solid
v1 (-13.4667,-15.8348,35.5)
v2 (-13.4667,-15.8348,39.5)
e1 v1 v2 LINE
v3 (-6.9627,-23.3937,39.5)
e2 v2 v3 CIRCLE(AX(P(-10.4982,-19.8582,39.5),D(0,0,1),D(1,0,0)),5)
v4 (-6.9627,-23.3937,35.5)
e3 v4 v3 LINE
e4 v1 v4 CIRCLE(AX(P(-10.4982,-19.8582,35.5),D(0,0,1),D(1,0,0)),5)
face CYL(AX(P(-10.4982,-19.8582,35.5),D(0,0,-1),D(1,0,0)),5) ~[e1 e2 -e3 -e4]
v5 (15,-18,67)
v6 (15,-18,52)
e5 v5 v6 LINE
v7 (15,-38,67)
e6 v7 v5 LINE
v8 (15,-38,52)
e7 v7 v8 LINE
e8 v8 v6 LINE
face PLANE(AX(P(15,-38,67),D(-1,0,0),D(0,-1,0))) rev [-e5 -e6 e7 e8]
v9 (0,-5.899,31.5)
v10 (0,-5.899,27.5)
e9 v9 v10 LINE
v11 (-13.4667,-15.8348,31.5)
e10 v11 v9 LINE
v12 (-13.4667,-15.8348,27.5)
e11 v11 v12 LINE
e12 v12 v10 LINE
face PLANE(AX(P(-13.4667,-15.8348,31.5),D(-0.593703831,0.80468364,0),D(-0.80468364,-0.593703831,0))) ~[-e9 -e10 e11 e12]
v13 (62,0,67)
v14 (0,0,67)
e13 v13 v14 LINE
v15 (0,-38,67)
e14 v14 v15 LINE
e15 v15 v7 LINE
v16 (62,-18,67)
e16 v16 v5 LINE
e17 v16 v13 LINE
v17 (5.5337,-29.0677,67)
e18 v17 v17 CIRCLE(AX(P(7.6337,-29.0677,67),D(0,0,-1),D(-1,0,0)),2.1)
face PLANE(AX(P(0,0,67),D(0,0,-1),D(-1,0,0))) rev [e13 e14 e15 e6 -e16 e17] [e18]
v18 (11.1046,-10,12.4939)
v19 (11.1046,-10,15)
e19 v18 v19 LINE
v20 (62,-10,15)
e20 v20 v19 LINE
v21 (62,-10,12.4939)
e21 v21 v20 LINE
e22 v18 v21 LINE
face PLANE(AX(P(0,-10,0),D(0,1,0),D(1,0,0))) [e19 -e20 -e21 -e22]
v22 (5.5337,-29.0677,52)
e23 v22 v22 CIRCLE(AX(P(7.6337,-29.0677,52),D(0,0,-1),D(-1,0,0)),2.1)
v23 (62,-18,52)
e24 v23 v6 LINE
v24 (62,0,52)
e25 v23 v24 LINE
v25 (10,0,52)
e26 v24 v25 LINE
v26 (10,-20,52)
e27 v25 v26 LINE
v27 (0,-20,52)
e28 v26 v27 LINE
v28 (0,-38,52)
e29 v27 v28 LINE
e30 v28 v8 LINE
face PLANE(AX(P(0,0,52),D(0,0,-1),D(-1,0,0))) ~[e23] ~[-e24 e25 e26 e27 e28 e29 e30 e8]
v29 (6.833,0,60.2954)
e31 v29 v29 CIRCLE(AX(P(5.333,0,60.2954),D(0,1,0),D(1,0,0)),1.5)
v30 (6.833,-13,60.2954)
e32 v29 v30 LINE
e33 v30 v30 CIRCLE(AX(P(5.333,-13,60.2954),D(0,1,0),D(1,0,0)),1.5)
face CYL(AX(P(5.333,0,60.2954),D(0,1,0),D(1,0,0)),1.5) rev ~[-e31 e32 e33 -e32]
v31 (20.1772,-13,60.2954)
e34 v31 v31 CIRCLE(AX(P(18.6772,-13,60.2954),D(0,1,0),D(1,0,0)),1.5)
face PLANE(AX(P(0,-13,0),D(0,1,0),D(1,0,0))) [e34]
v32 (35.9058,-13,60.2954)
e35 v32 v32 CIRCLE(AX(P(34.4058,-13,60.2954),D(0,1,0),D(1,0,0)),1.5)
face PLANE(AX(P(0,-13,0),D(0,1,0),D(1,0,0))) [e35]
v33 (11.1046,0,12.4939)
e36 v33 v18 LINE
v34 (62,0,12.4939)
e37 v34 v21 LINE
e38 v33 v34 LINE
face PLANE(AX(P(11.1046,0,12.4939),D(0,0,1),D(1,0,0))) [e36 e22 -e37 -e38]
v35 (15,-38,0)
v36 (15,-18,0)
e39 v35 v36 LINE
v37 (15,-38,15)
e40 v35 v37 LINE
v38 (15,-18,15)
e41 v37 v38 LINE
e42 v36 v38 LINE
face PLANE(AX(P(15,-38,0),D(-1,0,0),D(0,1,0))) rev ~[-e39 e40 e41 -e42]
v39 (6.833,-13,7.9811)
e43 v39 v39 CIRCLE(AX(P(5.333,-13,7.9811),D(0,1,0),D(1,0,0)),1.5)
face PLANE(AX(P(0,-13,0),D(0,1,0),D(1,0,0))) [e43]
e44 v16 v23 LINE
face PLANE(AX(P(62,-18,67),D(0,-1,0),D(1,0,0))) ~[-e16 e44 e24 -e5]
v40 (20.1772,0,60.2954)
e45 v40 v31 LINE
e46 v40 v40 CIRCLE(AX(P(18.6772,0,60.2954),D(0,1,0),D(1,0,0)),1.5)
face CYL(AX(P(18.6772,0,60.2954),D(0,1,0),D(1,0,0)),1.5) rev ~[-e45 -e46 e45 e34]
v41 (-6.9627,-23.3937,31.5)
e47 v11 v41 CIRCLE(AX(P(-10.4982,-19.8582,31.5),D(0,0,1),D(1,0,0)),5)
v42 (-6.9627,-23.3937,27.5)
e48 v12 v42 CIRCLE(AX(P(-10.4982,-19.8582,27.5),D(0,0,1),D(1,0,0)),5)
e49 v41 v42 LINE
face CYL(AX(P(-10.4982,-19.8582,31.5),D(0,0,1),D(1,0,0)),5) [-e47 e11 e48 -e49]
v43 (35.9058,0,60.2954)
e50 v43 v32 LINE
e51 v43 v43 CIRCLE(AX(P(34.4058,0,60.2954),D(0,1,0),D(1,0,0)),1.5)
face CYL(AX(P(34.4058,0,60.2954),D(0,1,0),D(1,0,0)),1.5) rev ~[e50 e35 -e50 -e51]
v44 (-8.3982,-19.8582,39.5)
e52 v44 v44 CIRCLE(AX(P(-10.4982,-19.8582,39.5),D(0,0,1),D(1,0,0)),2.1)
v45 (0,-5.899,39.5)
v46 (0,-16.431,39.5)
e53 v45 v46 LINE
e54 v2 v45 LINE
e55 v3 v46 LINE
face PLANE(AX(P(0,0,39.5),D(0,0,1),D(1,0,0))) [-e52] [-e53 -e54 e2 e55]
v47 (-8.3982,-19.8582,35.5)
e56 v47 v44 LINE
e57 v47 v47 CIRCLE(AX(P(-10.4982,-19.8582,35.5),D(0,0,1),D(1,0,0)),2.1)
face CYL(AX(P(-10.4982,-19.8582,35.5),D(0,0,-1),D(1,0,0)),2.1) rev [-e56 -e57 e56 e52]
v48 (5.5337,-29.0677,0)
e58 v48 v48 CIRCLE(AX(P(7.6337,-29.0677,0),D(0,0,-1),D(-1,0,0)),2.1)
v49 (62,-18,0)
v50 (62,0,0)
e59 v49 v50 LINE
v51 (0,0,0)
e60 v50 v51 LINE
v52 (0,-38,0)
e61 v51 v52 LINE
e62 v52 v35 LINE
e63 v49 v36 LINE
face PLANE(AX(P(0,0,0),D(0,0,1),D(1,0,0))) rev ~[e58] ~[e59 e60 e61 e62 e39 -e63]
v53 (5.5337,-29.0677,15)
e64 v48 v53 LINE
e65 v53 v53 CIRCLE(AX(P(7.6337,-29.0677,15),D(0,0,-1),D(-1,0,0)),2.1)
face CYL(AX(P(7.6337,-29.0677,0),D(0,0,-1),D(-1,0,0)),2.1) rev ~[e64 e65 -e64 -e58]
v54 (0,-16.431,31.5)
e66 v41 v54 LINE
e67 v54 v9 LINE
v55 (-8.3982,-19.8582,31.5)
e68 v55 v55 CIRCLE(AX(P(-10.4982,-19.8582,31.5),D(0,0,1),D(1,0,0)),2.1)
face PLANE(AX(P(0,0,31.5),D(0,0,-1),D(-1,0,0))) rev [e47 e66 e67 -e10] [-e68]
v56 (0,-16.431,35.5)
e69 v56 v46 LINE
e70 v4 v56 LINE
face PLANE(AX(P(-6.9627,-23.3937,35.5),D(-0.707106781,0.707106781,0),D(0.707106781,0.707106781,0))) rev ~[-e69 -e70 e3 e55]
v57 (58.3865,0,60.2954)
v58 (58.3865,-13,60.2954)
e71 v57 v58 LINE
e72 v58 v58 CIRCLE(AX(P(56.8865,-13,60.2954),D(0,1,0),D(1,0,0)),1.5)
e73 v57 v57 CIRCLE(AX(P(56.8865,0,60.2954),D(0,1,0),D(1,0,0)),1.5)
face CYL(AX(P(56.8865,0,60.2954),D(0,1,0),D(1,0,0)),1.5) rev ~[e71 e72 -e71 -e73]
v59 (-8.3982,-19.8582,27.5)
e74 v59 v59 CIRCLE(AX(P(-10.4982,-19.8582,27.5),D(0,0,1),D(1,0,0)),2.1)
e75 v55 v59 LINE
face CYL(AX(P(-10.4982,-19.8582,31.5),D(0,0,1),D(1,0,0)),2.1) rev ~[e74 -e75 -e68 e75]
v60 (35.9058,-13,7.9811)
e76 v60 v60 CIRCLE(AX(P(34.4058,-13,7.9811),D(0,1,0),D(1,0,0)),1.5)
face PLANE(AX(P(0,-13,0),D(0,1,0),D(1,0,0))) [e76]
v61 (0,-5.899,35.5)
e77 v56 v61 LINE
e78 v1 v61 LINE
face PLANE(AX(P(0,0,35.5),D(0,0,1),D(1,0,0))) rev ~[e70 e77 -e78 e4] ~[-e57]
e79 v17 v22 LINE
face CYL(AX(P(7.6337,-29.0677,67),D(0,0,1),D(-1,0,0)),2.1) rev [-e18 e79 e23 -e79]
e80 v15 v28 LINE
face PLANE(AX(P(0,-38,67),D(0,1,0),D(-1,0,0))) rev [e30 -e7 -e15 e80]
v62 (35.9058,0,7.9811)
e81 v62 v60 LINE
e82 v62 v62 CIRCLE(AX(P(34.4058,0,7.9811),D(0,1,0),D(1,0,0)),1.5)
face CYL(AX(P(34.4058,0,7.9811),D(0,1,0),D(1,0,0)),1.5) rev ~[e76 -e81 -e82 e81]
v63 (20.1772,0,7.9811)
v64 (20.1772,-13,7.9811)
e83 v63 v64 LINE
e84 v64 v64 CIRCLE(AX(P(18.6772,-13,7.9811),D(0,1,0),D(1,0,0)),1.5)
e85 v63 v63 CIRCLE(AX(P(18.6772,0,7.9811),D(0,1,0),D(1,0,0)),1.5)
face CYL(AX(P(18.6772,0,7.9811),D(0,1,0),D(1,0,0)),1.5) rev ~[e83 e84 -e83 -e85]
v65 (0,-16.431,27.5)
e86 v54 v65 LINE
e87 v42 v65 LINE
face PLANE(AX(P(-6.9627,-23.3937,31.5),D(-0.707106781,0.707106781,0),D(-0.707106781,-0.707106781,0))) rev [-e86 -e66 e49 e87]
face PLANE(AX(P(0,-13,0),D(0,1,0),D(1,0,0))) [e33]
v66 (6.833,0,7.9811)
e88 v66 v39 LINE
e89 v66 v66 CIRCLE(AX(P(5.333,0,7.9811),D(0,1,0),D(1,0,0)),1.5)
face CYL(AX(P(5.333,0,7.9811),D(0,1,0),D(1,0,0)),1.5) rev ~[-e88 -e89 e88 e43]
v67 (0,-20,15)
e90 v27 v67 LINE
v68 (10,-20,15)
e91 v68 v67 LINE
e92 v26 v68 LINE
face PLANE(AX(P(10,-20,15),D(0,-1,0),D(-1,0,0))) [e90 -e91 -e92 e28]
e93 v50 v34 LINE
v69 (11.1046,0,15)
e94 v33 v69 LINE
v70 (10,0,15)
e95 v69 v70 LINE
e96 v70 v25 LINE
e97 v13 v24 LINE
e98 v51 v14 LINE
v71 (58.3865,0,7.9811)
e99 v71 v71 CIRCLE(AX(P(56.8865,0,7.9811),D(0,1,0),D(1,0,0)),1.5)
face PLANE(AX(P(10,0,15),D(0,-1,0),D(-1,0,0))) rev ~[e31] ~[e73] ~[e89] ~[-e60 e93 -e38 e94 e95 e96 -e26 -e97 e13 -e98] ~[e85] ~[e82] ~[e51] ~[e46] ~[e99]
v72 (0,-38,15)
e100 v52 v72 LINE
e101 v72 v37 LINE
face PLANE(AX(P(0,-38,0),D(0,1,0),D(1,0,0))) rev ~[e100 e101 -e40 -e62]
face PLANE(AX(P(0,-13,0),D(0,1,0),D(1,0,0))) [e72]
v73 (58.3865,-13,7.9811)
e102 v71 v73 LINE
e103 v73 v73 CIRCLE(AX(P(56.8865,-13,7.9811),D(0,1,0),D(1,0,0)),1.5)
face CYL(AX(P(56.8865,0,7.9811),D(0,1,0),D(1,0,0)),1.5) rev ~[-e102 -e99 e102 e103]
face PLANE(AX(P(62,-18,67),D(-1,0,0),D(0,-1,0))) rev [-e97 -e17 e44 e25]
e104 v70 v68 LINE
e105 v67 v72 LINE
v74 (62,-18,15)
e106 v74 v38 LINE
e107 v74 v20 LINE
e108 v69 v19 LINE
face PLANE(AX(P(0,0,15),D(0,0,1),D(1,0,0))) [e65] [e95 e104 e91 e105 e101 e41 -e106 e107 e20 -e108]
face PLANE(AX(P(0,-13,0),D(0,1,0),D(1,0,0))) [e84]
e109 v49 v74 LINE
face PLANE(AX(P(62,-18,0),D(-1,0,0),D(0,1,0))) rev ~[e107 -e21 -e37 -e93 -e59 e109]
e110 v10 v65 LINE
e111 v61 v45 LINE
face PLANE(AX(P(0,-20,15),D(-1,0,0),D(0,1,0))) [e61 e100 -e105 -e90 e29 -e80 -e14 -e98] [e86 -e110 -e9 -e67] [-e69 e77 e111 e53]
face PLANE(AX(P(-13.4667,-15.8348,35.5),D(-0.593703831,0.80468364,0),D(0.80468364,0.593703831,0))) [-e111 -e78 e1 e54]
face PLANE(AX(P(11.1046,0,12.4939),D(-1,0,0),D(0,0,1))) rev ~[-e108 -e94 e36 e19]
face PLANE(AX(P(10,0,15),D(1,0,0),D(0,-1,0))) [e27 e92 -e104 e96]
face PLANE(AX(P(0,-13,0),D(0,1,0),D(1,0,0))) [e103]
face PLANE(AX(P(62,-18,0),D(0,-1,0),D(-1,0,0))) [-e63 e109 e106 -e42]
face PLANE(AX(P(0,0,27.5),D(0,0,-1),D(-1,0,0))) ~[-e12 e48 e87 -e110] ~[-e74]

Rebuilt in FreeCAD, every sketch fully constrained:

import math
import FreeCAD as App
import Part
import Sketcher
from FreeCAD import Vector
Q = App.Units.Quantity

doc = App.newDocument("Part")
body = doc.addObject("PartDesign::Body", "Body")

# Sketch on XY plane
sketch1 = body.newObject("Sketcher::SketchObject", "Sketch")
sketch1.AttachmentSupport = (doc.getObject("XY_Plane"), [""])
sketch1.MapMode = "FlatFace"
sketch1.addGeometry(Part.LineSegment(Vector(15, -18, 0), Vector(62, -18, 0)), False)
sketch1.addGeometry(Part.LineSegment(Vector(62, -18, 0), Vector(62, 0, 0)), False)
sketch1.addGeometry(Part.LineSegment(Vector(62, 0, 0), Vector(0, 0, 0)), False)
sketch1.addGeometry(Part.LineSegment(Vector(0, 0, 0), Vector(0, -38, 0)), False)
sketch1.addGeometry(Part.LineSegment(Vector(0, -38, 0), Vector(15, -38, 0)), False)
sketch1.addGeometry(Part.LineSegment(Vector(15, -38, 0), Vector(15, -18, 0)), False)
sketch1.addConstraint(Sketcher.Constraint("Coincident", 0, 2, 1, 1))
sketch1.addConstraint(Sketcher.Constraint("Coincident", 1, 2, 2, 1))
sketch1.addConstraint(Sketcher.Constraint("Coincident", 2, 2, 3, 1))
sketch1.addConstraint(Sketcher.Constraint("Coincident", 3, 2, 4, 1))
sketch1.addConstraint(Sketcher.Constraint("Coincident", 4, 2, 5, 1))
sketch1.addConstraint(Sketcher.Constraint("Coincident", 5, 2, 0, 1))
sketch1.addConstraint(Sketcher.Constraint("Horizontal", 0))
sketch1.addConstraint(Sketcher.Constraint("Vertical", 1))
sketch1.addConstraint(Sketcher.Constraint("Horizontal", 2))
sketch1.addConstraint(Sketcher.Constraint("Vertical", 3))
sketch1.addConstraint(Sketcher.Constraint("Horizontal", 4))
sketch1.addConstraint(Sketcher.Constraint("Vertical", 5))
sketch1.addConstraint(Sketcher.Constraint("Coincident", 2, 2, -1, 1))
sketch1.addConstraint(Sketcher.Constraint("DistanceX", 2, 2, 2, 1, 62.0))
sketch1.addConstraint(Sketcher.Constraint("DistanceX", 4, 1, 4, 2, 15.0))
sketch1.addConstraint(Sketcher.Constraint("DistanceY", 1, 1, 1, 2, 18.0))
sketch1.addConstraint(Sketcher.Constraint("DistanceY", 3, 2, 3, 1, 38.0))
pad1 = body.newObject("PartDesign::Pad", "Pad")
pad1.Profile = sketch1
pad1.Length = 15

# Sketch on XY plane
sketch2 = body.newObject("Sketcher::SketchObject", "Sketch001")
sketch2.AttachmentSupport = (doc.getObject("XY_Plane"), [""])
sketch2.MapMode = "FlatFace"
sketch2.addGeometry(Part.Circle(Vector(7.6, -29.1, 0), Vector(0, 0, 1), 2.1), False)
sketch2.addConstraint(Sketcher.Constraint("Diameter", 0, 4.2))
sketch2.addConstraint(Sketcher.Constraint("DistanceX", -1, 1, 0, 3, 7.6337))
sketch2.addConstraint(Sketcher.Constraint("DistanceY", 0, 3, -1, 1, 29.0677))
pocket1 = body.newObject("PartDesign::Pocket", "Pocket")
pocket1.Profile = sketch2
pocket1.Type = "ThroughAll"
pocket1.Reversed = True

# Sketch on XY plane
sketch3 = body.newObject("Sketcher::SketchObject", "Sketch002")
sketch3.AttachmentSupport = (doc.getObject("XY_Plane"), [""])
sketch3.MapMode = "FlatFace"
sketch3.AttachmentOffset = App.Placement(Vector(0, 0, 15), App.Rotation())
sketch3.addGeometry(Part.LineSegment(Vector(10, -20, 0), Vector(10, 0, 0)), False)
sketch3.addGeometry(Part.LineSegment(Vector(10, 0, 0), Vector(0, 0, 0)), False)
sketch3.addGeometry(Part.LineSegment(Vector(0, 0, 0), Vector(0, -20, 0)), False)
sketch3.addGeometry(Part.LineSegment(Vector(0, -20, 0), Vector(10, -20, 0)), False)
sketch3.addConstraint(Sketcher.Constraint("Coincident", 0, 2, 1, 1))
sketch3.addConstraint(Sketcher.Constraint("Coincident", 1, 2, 2, 1))
sketch3.addConstraint(Sketcher.Constraint("Coincident", 2, 2, 3, 1))
sketch3.addConstraint(Sketcher.Constraint("Coincident", 3, 2, 0, 1))
sketch3.addConstraint(Sketcher.Constraint("Vertical", 0))
sketch3.addConstraint(Sketcher.Constraint("Horizontal", 1))
sketch3.addConstraint(Sketcher.Constraint("Vertical", 2))
sketch3.addConstraint(Sketcher.Constraint("Horizontal", 3))
sketch3.addConstraint(Sketcher.Constraint("Coincident", 1, 2, -1, 1))
sketch3.addConstraint(Sketcher.Constraint("DistanceX", 1, 2, 1, 1, 10.0))
sketch3.addConstraint(Sketcher.Constraint("DistanceY", 0, 1, 0, 2, 20.0))
pad2 = body.newObject("PartDesign::Pad", "Pad001")
pad2.Profile = sketch3
pad2.Length = 18.5
doc.recompute()

datumplane = body.newObject("PartDesign::Plane", "DatumPlane")
datumplane.AttachmentSupport = (doc.getObject("XY_Plane"), [""])
datumplane.MapMode = "FlatFace"
datumplane.AttachmentOffset = App.Placement(Vector(0, 0, 33.5), App.Rotation())
mirrored = body.newObject("PartDesign::Mirrored", "Mirrored")
mirrored.TransformMode = "Transform body"
mirrored.MirrorPlane = (datumplane, [""])
body.Tip = mirrored

# Sketch on XZ plane
sketch4 = body.newObject("Sketcher::SketchObject", "Sketch003")
sketch4.AttachmentSupport = (doc.getObject("XZ_Plane"), [""])
sketch4.MapMode = "FlatFace"
sketch4.addGeometry(Part.Circle(Vector(5.3, 60.3, 0), Vector(0, 0, 1), 1.5), False)
sketch4.addGeometry(Part.Circle(Vector(18.7, 8, 0), Vector(0, 0, 1), 1.5), False)
sketch4.addGeometry(Part.Circle(Vector(18.7, 60.3, 0), Vector(0, 0, 1), 1.5), False)
sketch4.addGeometry(Part.Circle(Vector(5.3, 8, 0), Vector(0, 0, 1), 1.5), False)
sketch4.addGeometry(Part.Circle(Vector(34.4, 60.3, 0), Vector(0, 0, 1), 1.5), False)
sketch4.addGeometry(Part.Circle(Vector(34.4, 8, 0), Vector(0, 0, 1), 1.5), False)
sketch4.addGeometry(Part.Circle(Vector(56.9, 8, 0), Vector(0, 0, 1), 1.5), False)
sketch4.addGeometry(Part.Circle(Vector(56.9, 60.3, 0), Vector(0, 0, 1), 1.5), False)
sketch4.addConstraint(Sketcher.Constraint("Equal", 0, 1))
sketch4.addConstraint(Sketcher.Constraint("Equal", 1, 2))
sketch4.addConstraint(Sketcher.Constraint("Equal", 2, 3))
sketch4.addConstraint(Sketcher.Constraint("Equal", 3, 4))
sketch4.addConstraint(Sketcher.Constraint("Equal", 4, 5))
sketch4.addConstraint(Sketcher.Constraint("Equal", 5, 6))
sketch4.addConstraint(Sketcher.Constraint("Equal", 6, 7))
sketch4.addConstraint(Sketcher.Constraint("Horizontal", 0, 3, 2, 3))
sketch4.addConstraint(Sketcher.Constraint("Horizontal", 1, 3, 3, 3))
sketch4.addConstraint(Sketcher.Constraint("Horizontal", 2, 3, 4, 3))
sketch4.addConstraint(Sketcher.Constraint("Horizontal", 3, 3, 5, 3))
sketch4.addConstraint(Sketcher.Constraint("Horizontal", 5, 3, 6, 3))
sketch4.addConstraint(Sketcher.Constraint("Horizontal", 4, 3, 7, 3))
sketch4.addConstraint(Sketcher.Constraint("Vertical", 1, 3, 2, 3))
sketch4.addConstraint(Sketcher.Constraint("Vertical", 0, 3, 3, 3))
sketch4.addConstraint(Sketcher.Constraint("Vertical", 4, 3, 5, 3))
sketch4.addConstraint(Sketcher.Constraint("Vertical", 6, 3, 7, 3))
sketch4.addConstraint(Sketcher.Constraint("Diameter", 0, 3.0))
sketch4.addConstraint(Sketcher.Constraint("DistanceX", -1, 1, 0, 3, 5.333))
sketch4.addConstraint(Sketcher.Constraint("DistanceY", -1, 1, 1, 3, 7.981))
sketch4.addConstraint(Sketcher.Constraint("DistanceY", -1, 1, 0, 3, 60.2954))
sketch4.addConstraint(Sketcher.Constraint("DistanceX", -1, 1, 1, 3, 18.6772))
sketch4.addConstraint(Sketcher.Constraint("DistanceX", -1, 1, 4, 3, 34.4058))
sketch4.addConstraint(Sketcher.Constraint("DistanceX", -1, 1, 6, 3, 56.8865))
pocket2 = body.newObject("PartDesign::Pocket", "Pocket001")
pocket2.Profile = sketch4
pocket2.Length = 13
pocket2.Reversed = True

# Sketch on XZ plane
sketch5 = body.newObject("Sketcher::SketchObject", "Sketch004")
sketch5.AttachmentSupport = (doc.getObject("XZ_Plane"), [""])
sketch5.MapMode = "FlatFace"
sketch5.addGeometry(Part.LineSegment(Vector(62, 15, 0), Vector(62, 12.5, 0)), False)
sketch5.addGeometry(Part.LineSegment(Vector(62, 12.5, 0), Vector(11.1, 12.5, 0)), False)
sketch5.addGeometry(Part.LineSegment(Vector(11.1, 12.5, 0), Vector(11.1, 15, 0)), False)
sketch5.addGeometry(Part.LineSegment(Vector(11.1, 15, 0), Vector(62, 15, 0)), False)
sketch5.addConstraint(Sketcher.Constraint("Coincident", 0, 2, 1, 1))
sketch5.addConstraint(Sketcher.Constraint("Coincident", 1, 2, 2, 1))
sketch5.addConstraint(Sketcher.Constraint("Coincident", 2, 2, 3, 1))
sketch5.addConstraint(Sketcher.Constraint("Coincident", 3, 2, 0, 1))
sketch5.addConstraint(Sketcher.Constraint("Vertical", 0))
sketch5.addConstraint(Sketcher.Constraint("Horizontal", 1))
sketch5.addConstraint(Sketcher.Constraint("Vertical", 2))
sketch5.addConstraint(Sketcher.Constraint("Horizontal", 3))
sketch5.addConstraint(Sketcher.Constraint("DistanceX", -1, 1, 0, 2, 62.0))
sketch5.addConstraint(Sketcher.Constraint("DistanceY", -1, 1, 2, 2, 15.0))
sketch5.addConstraint(Sketcher.Constraint("DistanceY", 0, 2, 0, 1, 2.506))
sketch5.addConstraint(Sketcher.Constraint("DistanceX", 1, 2, 1, 1, 50.8954))
pocket3 = body.newObject("PartDesign::Pocket", "Pocket002")
pocket3.Profile = sketch5
pocket3.Length = 10
pocket3.Reversed = True

# Sketch on XY plane
sketch6 = body.newObject("Sketcher::SketchObject", "Sketch005")
sketch6.AttachmentSupport = (doc.getObject("XY_Plane"), [""])
sketch6.MapMode = "FlatFace"
sketch6.AttachmentOffset = App.Placement(Vector(0, 0, 35.5), App.Rotation())
sketch6.addGeometry(Part.LineSegment(Vector(0, -5.9, 0), Vector(-13.5, -15.8, 0)), False)
sketch6.addGeometry(Part.ArcOfCircle(Part.Circle(Vector(-10.5, -19.9, 0), Vector(0, 0, 1), 5), math.radians(126), math.radians(315)), False)
sketch6.addGeometry(Part.LineSegment(Vector(-7, -23.4, 0), Vector(0, -16.4, 0)), False)
sketch6.addGeometry(Part.LineSegment(Vector(0, -16.4, 0), Vector(0, -5.9, 0)), False)
sketch6.addGeometry(Part.Circle(Vector(-10.5, -19.9, 0), Vector(0, 0, 1), 2.1), False)
sketch6.addConstraint(Sketcher.Constraint("Tangent", 0, 2, 1, 1))
sketch6.addConstraint(Sketcher.Constraint("Tangent", 1, 2, 2, 1))
sketch6.addConstraint(Sketcher.Constraint("Coincident", 2, 2, 3, 1))
sketch6.addConstraint(Sketcher.Constraint("Coincident", 3, 2, 0, 1))
sketch6.addConstraint(Sketcher.Constraint("Vertical", 3))
sketch6.addConstraint(Sketcher.Constraint("Coincident", 4, 3, 1, 3))
sketch6.addConstraint(Sketcher.Constraint("PointOnObject", 2, 2, -2))
sketch6.addConstraint(Sketcher.Constraint("Radius", 1, 5.0))
sketch6.addConstraint(Sketcher.Constraint("Diameter", 4, 4.2))
sketch6.addConstraint(Sketcher.Constraint("Angle", 2, Q("45 deg")))
sketch6.addConstraint(Sketcher.Constraint("Angle", 0, Q("-143.5797 deg")))
sketch6.addConstraint(Sketcher.Constraint("DistanceY", 3, 1, 3, 2, 10.532))
sketch6.addConstraint(Sketcher.Constraint("DistanceY", 2, 2, -1, 1, 16.431))
pad3 = body.newObject("PartDesign::Pad", "Pad002")
pad3.Profile = sketch6
pad3.Length = 4
doc.recompute()

datumplane2 = body.newObject("PartDesign::Plane", "DatumPlane001")
datumplane2.AttachmentSupport = (doc.getObject("XY_Plane"), [""])
datumplane2.MapMode = "FlatFace"
datumplane2.AttachmentOffset = App.Placement(Vector(0, 0, 33.5), App.Rotation())
mirrored2 = body.newObject("PartDesign::Mirrored", "Mirrored001")
mirrored2.Originals = [pad3]
mirrored2.MirrorPlane = (datumplane2, [""])
body.Tip = mirrored2

doc.recompute()
